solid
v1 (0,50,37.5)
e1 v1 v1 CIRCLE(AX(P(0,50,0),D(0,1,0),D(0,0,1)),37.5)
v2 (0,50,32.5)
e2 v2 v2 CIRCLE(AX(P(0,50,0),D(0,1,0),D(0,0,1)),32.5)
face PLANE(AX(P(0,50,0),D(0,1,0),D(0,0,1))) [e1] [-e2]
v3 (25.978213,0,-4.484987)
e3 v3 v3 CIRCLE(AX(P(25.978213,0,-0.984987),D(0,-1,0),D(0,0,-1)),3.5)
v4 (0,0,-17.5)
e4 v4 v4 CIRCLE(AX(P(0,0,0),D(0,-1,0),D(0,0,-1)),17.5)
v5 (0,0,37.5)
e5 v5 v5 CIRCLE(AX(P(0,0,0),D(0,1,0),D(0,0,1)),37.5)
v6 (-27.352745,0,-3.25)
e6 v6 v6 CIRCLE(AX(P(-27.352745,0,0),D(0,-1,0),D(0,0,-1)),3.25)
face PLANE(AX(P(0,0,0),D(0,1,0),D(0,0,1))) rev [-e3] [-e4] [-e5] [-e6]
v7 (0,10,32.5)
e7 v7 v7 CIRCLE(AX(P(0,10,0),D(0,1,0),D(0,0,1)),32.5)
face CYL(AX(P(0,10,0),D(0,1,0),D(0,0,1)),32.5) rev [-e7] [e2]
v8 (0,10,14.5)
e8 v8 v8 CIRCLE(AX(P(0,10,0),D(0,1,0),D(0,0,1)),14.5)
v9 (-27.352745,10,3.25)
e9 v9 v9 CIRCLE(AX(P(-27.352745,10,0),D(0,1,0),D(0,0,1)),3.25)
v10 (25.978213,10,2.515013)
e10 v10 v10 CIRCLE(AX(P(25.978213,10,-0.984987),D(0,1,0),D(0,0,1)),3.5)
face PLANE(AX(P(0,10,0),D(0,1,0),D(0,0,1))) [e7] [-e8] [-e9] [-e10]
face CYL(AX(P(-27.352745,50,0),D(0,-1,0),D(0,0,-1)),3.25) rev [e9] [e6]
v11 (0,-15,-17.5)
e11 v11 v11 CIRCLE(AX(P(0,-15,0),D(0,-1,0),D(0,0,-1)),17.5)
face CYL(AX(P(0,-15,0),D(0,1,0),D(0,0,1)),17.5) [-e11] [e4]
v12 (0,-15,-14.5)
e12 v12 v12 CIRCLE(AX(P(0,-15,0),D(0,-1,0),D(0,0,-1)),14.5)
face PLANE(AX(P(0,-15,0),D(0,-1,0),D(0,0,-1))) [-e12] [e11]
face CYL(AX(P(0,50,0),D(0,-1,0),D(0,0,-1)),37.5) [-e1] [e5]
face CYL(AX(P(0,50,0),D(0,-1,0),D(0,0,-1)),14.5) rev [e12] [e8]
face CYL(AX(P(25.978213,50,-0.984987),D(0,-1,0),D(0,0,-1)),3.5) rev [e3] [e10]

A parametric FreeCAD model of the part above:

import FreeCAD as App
import Part
import Sketcher

V = App.Vector

doc = App.newDocument("Part")
body = doc.addObject("PartDesign::Body", "Body")

# Sketch on XZ plane
sketch1 = body.newObject("Sketcher::SketchObject", "Sketch")
sketch1.AttachmentSupport = (doc.getObject("XZ_Plane"), [""])
sketch1.MapMode = "FlatFace"
sketch1.addGeometry(Part.Circle(V(0, 0, 0), V(0, 0, 1), 38), False)
sketch1.addConstraint(Sketcher.Constraint("Coincident", 0, 3, -1, 1))
sketch1.addConstraint(Sketcher.Constraint("Diameter", 0, 75.0))
pad1 = body.newObject("PartDesign::Pad", "Pad")
pad1.Profile = sketch1
pad1.Length = 50
pad1.Reversed = True

# Sketch on XZ plane
sketch2 = body.newObject("Sketcher::SketchObject", "Sketch001")
sketch2.AttachmentSupport = (doc.getObject("XZ_Plane"), [""])
sketch2.MapMode = "FlatFace"
sketch2.AttachmentOffset = App.Placement(V(0, 0, -50), App.Rotation())
sketch2.addGeometry(Part.Circle(V(0, 0, 0), V(0, 0, 1), 32), False)
sketch2.addConstraint(Sketcher.Constraint("Coincident", 0, 3, -1, 1))
sketch2.addConstraint(Sketcher.Constraint("Diameter", 0, 65.0))
pocket1 = body.newObject("PartDesign::Pocket", "Pocket")
pocket1.Profile = sketch2
pocket1.Length = 40
pocket1.Reversed = True

# Sketch on XZ plane
sketch3 = body.newObject("Sketcher::SketchObject", "Sketch002")
sketch3.AttachmentSupport = (doc.getObject("XZ_Plane"), [""])
sketch3.MapMode = "FlatFace"
sketch3.addGeometry(Part.Circle(V(0, 0, 0), V(0, 0, 1), 18), False)
sketch3.addConstraint(Sketcher.Constraint("Coincident", 0, 3, -1, 1))
sketch3.addConstraint(Sketcher.Constraint("Diameter", 0, 35.0))
pad2 = body.newObject("PartDesign::Pad", "Pad001")
pad2.Profile = sketch3
pad2.Length = 15

# Sketch on XZ plane
sketch4 = body.newObject("Sketcher::SketchObject", "Sketch003")
sketch4.AttachmentSupport = (doc.getObject("XZ_Plane"), [""])
sketch4.MapMode = "FlatFace"
sketch4.AttachmentOffset = App.Placement(V(0, 0, 15), App.Rotation())
sketch4.addGeometry(Part.Circle(V(0, 0, 0), V(0, 0, 1), 14), False)
sketch4.addConstraint(Sketcher.Constraint("Coincident", 0, 3, -1, 1))
sketch4.addConstraint(Sketcher.Constraint("Diameter", 0, 29.0))
pocket2 = body.newObject("PartDesign::Pocket", "Pocket001")
pocket2.Profile = sketch4
pocket2.Type = "ThroughAll"

# Sketch on XZ plane
sketch5 = body.newObject("Sketcher::SketchObject", "Sketch004")
sketch5.AttachmentSupport = (doc.getObject("XZ_Plane"), [""])
sketch5.MapMode = "FlatFace"
sketch5.addGeometry(Part.Circle(V(26, -1, 0), V(0, 0, 1), 3.5), False)
sketch5.addConstraint(Sketcher.Constraint("Diameter", 0, 7.0))
sketch5.addConstraint(Sketcher.Constraint("DistanceX", -1, 1, 0, 3, 25.978213))
sketch5.addConstraint(Sketcher.Constraint("DistanceY", 0, 3, -1, 1, 0.984987))
pocket3 = body.newObject("PartDesign::Pocket", "Pocket002")
pocket3.Profile = sketch5
pocket3.Type = "ThroughAll"

# Sketch on XZ plane
sketch6 = body.newObject("Sketcher::SketchObject", "Sketch005")
sketch6.AttachmentSupport = (doc.getObject("XZ_Plane"), [""])
sketch6.MapMode = "FlatFace"
sketch6.addGeometry(Part.Circle(V(-27.4, 0, 0), V(0, 0, 1), 3.2), False)
sketch6.addConstraint(Sketcher.Constraint("PointOnObject", 0, 3, -1))
sketch6.addConstraint(Sketcher.Constraint("Diameter", 0, 6.5))
sketch6.addConstraint(Sketcher.Constraint("DistanceX", 0, 3, -1, 1, 27.352745))
pocket4 = body.newObject("PartDesign::Pocket", "Pocket003")
pocket4.Profile = sketch6
pocket4.Type = "ThroughAll"

doc.recompute()
